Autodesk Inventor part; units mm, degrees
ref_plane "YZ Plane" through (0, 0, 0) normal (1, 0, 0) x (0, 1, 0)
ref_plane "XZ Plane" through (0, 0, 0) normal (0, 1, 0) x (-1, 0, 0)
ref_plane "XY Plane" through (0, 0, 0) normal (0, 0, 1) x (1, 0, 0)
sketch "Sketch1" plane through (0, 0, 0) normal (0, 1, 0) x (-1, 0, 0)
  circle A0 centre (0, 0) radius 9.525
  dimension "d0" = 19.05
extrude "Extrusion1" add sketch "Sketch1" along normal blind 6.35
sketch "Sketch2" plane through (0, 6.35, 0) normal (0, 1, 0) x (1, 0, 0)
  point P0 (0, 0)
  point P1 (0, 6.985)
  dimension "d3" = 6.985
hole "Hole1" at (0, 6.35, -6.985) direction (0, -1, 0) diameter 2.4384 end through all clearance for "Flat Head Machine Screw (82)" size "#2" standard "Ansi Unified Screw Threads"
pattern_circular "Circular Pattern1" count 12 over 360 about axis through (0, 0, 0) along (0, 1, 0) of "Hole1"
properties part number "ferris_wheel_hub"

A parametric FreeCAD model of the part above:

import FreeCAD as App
import Part
import Sketcher

V = App.Vector
Q = App.Units.Quantity

doc = App.newDocument("Part")
params = doc.addObject("Spreadsheet::Sheet", "Params")
for row, (alias, value) in enumerate([
    ("sketch1_diameter", "0.75 in"),
    ("pad1_length", "0.25 in"),
    ("sketch2_diameter", "0.096 in"),
    ("hole_diameter", "0.096 in"),
], start=1):
    params.set(f"A{row}", alias)
    params.set(f"B{row}", "=" + value)
    params.setAlias(f"B{row}", alias)

body = doc.addObject("PartDesign::Body", "Body")

sketch1 = body.newObject("Sketcher::SketchObject", "Sketch")
sketch1.AttachmentSupport = (doc.getObject("XZ_Plane"), [""])
sketch1.MapMode = "FlatFace"
sketch1.addGeometry(Part.Circle(V(0, 0, 0), V(0, 0, 1), 10), False)
sketch1.addConstraint([
    Sketcher.Constraint("Coincident", 0, 3, -1, 1),
    Sketcher.Constraint("Diameter", 0, Q("0.75 in")),
])
sketch1.setExpression("Constraints[1]", "Params.sketch1_diameter")
pad1 = body.newObject("PartDesign::Pad", "Pad")
pad1.Profile = sketch1
pad1.setExpression("Length", "Params.pad1_length")
pad1.Reversed = True

sketch2 = body.newObject("Sketcher::SketchObject", "Sketch001")
sketch2.AttachmentSupport = (doc.getObject("XZ_Plane"), [""])
sketch2.MapMode = "FlatFace"
sketch2.AttachmentOffset = App.Placement(V(0, 0, -0.25 * 25.4), App.Rotation())
sketch2.addGeometry(Part.Circle(V(0, -7, 0), V(0, 0, 1), 1.2), False)
sketch2.addConstraint([
    Sketcher.Constraint("PointOnObject", 0, 3, -2),
    Sketcher.Constraint("Diameter", 0, Q("0.096 in")),
    Sketcher.Constraint("DistanceY", 0, 3, -1, 1, Q("0.275 in")),
])
sketch2.setExpression("Constraints[1]", "Params.sketch2_diameter")
doc.recompute()
hole = body.newObject("PartDesign::Hole", "Hole")
hole.Profile = sketch2
hole.ThreadType = "None"
hole.setExpression("Diameter", "Params.hole_diameter")
hole.DepthType = "ThroughAll"
hole.Reversed = True
doc.recompute()

polarpattern = body.newObject("PartDesign::PolarPattern", "PolarPattern")
polarpattern.Originals = [hole]
polarpattern.Axis = (doc.getObject("Y_Axis"), [""])
polarpattern.Angle = 360
polarpattern.Occurrences = 12
body.Tip = polarpattern

doc.recompute()
